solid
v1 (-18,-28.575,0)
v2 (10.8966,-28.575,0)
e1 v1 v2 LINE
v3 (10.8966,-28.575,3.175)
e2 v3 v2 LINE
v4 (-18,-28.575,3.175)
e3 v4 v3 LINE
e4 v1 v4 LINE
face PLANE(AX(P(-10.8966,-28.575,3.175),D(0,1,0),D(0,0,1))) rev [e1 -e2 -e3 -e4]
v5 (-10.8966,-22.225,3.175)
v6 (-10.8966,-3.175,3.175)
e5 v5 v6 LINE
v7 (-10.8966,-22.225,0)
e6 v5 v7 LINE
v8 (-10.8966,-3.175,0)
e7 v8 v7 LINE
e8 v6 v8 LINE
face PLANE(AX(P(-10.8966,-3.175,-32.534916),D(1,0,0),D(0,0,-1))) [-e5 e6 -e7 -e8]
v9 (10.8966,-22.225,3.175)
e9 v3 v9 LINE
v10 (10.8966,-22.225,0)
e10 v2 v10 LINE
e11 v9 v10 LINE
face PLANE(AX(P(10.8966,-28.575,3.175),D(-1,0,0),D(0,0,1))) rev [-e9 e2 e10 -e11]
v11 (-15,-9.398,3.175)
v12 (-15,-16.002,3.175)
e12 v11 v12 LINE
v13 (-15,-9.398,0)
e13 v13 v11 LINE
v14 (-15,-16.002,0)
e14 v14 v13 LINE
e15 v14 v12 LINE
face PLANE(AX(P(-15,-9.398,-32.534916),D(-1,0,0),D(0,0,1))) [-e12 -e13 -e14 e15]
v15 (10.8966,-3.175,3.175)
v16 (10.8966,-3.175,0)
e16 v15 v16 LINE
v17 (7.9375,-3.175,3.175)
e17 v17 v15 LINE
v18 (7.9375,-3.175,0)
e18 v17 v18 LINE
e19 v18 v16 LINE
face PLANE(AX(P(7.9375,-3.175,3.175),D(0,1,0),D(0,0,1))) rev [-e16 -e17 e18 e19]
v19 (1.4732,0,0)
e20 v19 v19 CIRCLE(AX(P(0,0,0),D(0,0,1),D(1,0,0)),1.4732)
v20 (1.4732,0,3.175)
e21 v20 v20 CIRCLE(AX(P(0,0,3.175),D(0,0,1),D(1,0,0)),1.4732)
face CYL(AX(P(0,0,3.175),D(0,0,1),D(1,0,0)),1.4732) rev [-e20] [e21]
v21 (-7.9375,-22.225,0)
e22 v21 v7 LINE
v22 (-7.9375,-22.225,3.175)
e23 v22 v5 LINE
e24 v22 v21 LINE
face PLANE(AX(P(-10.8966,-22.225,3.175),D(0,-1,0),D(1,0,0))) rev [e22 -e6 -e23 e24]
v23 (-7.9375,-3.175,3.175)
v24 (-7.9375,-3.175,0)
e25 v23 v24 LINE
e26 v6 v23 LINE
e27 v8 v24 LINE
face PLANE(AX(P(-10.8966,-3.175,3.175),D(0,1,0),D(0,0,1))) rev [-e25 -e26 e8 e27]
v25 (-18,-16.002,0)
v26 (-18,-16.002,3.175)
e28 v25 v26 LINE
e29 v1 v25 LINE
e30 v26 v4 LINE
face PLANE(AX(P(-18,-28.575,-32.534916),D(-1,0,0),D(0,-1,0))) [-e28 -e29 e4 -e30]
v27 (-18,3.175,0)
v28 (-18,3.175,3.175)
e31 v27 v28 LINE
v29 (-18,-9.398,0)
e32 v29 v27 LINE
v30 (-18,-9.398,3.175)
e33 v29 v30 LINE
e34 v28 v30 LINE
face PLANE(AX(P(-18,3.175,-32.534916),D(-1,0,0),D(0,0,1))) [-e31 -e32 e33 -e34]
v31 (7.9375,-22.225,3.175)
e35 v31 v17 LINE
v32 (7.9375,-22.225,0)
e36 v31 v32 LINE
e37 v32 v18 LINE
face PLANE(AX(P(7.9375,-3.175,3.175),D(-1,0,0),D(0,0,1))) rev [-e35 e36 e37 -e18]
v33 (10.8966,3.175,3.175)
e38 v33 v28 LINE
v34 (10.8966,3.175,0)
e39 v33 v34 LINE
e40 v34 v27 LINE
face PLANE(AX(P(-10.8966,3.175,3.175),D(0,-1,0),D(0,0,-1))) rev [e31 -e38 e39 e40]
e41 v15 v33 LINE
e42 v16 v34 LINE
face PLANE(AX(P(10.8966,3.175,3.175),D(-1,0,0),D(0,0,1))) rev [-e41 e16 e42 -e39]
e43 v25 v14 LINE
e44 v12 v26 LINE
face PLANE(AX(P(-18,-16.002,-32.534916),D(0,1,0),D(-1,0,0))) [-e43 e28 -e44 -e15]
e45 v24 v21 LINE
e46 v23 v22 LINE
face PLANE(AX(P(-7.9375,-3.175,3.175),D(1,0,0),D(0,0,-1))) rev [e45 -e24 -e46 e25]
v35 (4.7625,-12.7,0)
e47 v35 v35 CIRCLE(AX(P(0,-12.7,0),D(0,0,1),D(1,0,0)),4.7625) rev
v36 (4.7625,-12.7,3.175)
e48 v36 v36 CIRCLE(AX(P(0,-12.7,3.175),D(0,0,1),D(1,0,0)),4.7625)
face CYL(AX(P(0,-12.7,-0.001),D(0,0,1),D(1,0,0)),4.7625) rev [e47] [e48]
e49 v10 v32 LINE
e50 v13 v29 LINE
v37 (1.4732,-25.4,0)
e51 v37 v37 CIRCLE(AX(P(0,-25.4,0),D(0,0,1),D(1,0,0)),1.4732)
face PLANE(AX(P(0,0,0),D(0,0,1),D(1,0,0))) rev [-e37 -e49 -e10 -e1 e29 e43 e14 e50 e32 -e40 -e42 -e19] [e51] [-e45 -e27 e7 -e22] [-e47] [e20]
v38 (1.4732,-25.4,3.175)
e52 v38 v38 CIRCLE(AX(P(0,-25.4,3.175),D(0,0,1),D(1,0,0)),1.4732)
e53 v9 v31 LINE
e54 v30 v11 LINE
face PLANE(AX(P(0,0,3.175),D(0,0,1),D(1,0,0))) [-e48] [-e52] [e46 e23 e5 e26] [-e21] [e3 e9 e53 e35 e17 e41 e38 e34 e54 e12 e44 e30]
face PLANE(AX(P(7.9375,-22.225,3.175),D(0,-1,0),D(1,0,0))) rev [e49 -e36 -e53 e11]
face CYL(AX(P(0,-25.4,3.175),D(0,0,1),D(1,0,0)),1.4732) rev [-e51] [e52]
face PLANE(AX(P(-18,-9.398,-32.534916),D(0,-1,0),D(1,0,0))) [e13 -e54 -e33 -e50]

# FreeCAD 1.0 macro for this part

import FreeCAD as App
import Part
import Sketcher
from FreeCAD import Vector
Q = App.Units.Quantity


def add_polygon(sketch, points):
    """Adds a closed chain of lines whose ends are joined by coincident constraints."""
    first, n = sketch.GeometryCount, len(points)
    for a, b in zip(points, points[1:] + points[:1]):
        sketch.addGeometry(Part.LineSegment(App.Vector(*a, 0), App.Vector(*b, 0)), False)
    for i in range(n):
        sketch.addConstraint(Sketcher.Constraint("Coincident", first + i, 2, first + (i + 1) % n, 1))

doc = App.newDocument("Part")
params = doc.addObject("Spreadsheet::Sheet", "Params")
for row, (alias, value) in enumerate([
    ("sketch1_height", "0.25 in"),
    ("sketch1_width", "0.858 in"),
    ("pad1_length", "0.125 in"),
    ("sketch2_diameter", "0.116 in"),
    ("hole_diameter", "0.116 in"),
    ("hole_depth", "0.13 in"),
    ("sketch3_diameter", "0.375 in"),
    ("sketch4_height", "1.25 in"),
    ("sketch4_height2", "0.26 in"),
    ("pad2_length", "0.125 in"),
], start=1):
    params.set(f"A{row}", alias)
    params.set(f"B{row}", "=" + value)
    params.setAlias(f"B{row}", alias)

body = doc.addObject("PartDesign::Body", "Body")

sketch1 = doc.addObject("Sketcher::SketchObject", "Sketch")
body.addObject(sketch1)
sketch1.AttachmentSupport = (doc.XY_Plane, [""])
sketch1.MapMode = "FlatFace"
add_polygon(sketch1, [(7.9, -3.2), (10.9, -3.2), (10.9, 3.2), (-10.9, 3.2), (-10.9, -3.2), (-7.9, -3.2), (-7.9, -22.2), (-10.9, -22.2), (-10.9, -28.6), (10.9, -28.6), (10.9, -22.2), (7.9, -22.2)])
sketch1.addConstraint([
    Sketcher.Constraint("Horizontal", 0),
    Sketcher.Constraint("Vertical", 1),
    Sketcher.Constraint("Horizontal", 2),
    Sketcher.Constraint("Vertical", 3),
    Sketcher.Constraint("Horizontal", 4),
    Sketcher.Constraint("Vertical", 5),
    Sketcher.Constraint("Horizontal", 6),
    Sketcher.Constraint("Vertical", 7),
    Sketcher.Constraint("Horizontal", 8),
    Sketcher.Constraint("Vertical", 9),
    Sketcher.Constraint("Horizontal", 10),
    Sketcher.Constraint("Vertical", 11),
    Sketcher.Constraint("Symmetric", 0, 2, 2, 2, -1, 1),
    Sketcher.Constraint("Symmetric", 6, 2, 9, 2, -2),
    Sketcher.Constraint("Symmetric", 4, 2, 11, 2, -2),
    Sketcher.Constraint("Vertical", 3, 2, 6, 2),
    Sketcher.Constraint("Equal", 3, 7),
    Sketcher.Constraint("DistanceY", 5, 2, 2, 2, Q("1 in")),
    Sketcher.Constraint("DistanceY", 1, 1, 1, 2, Q("0.25 in")),
    Sketcher.Constraint("DistanceX", 2, 2, 2, 1, Q("0.858 in")),
    Sketcher.Constraint("DistanceX", 0, 1, 0, 2, Q("0.1165 in")),
])
sketch1.setExpression("Constraints[30]", "Params.sketch1_height")
sketch1.setExpression("Constraints[31]", "Params.sketch1_width")
pad1 = doc.addObject("PartDesign::Pad", "Pad")
body.addObject(pad1)
pad1.Profile = sketch1
pad1.setExpression("Length", "Params.pad1_length")

sketch2 = doc.addObject("Sketcher::SketchObject", "Sketch001")
body.addObject(sketch2)
sketch2.AttachmentSupport = (doc.XY_Plane, [""])
sketch2.MapMode = "FlatFace"
sketch2.AttachmentOffset = App.Placement(Vector(0, 0, 0.125 * 25.4), App.Rotation())
sketch2.addGeometry([
    Part.Circle(Vector(0, 0, 0), Vector(0, 0, 1), 1.5),
    Part.Circle(Vector(0, -25.4, 0), Vector(0, 0, 1), 1.5),
], False)
sketch2.addConstraint([
    Sketcher.Constraint("Coincident", 0, 3, -1, 1),
    Sketcher.Constraint("Equal", 0, 1),
    Sketcher.Constraint("PointOnObject", 1, 3, -2),
    Sketcher.Constraint("Diameter", 0, Q("0.116 in")),
    Sketcher.Constraint("DistanceY", 1, 3, -1, 1, Q("1 in")),
])
sketch2.setExpression("Constraints[3]", "Params.sketch2_diameter")
doc.recompute()
hole = doc.addObject("PartDesign::Hole", "Hole")
body.addObject(hole)
hole.Profile = sketch2
hole.ThreadType = "None"
hole.setExpression("Diameter", "Params.hole_diameter")
hole.DepthType = "Dimension"
hole.setExpression("Depth", "Params.hole_depth")
hole.DrillPoint = "Angled"
hole.DrillPointAngle = 118

sketch3 = doc.addObject("Sketcher::SketchObject", "Sketch002")
body.addObject(sketch3)
sketch3.AttachmentSupport = (doc.XY_Plane, [""])
sketch3.MapMode = "FlatFace"
sketch3.AttachmentOffset = App.Placement(Vector(0, 0, 0.125 * 25.4), App.Rotation())
sketch3.addGeometry(Part.Circle(Vector(0, -12.7, 0), Vector(0, 0, 1), 4.8), False)
sketch3.addConstraint([
    Sketcher.Constraint("PointOnObject", 0, 3, -2),
    Sketcher.Constraint("Diameter", 0, Q("0.375 in")),
    Sketcher.Constraint("DistanceY", 0, 3, -1, 1, Q("0.5 in")),
])
sketch3.setExpression("Constraints[1]", "Params.sketch3_diameter")
pocket1 = doc.addObject("PartDesign::Pocket", "Pocket")
body.addObject(pocket1)
pocket1.Profile = sketch3
pocket1.Type = "UpToFirst"

sketch4 = doc.addObject("Sketcher::SketchObject", "Sketch003")
body.addObject(sketch4)
sketch4.AttachmentSupport = (doc.XY_Plane, [""])
sketch4.MapMode = "FlatFace"
sketch4.AttachmentOffset = App.Placement(Vector(0, 0, 0.125 * 25.4), App.Rotation())
add_polygon(sketch4, [(-10.9, -28.6), (-10.9, 3.2), (-18, 3.2), (-18, -9.4), (-15, -9.4), (-15, -16), (-18, -16), (-18, -28.6)])
sketch4.addConstraint([
    Sketcher.Constraint("Vertical", 0),
    Sketcher.Constraint("Horizontal", 1),
    Sketcher.Constraint("Vertical", 2),
    Sketcher.Constraint("Horizontal", 3),
    Sketcher.Constraint("Vertical", 4),
    Sketcher.Constraint("Horizontal", 5),
    Sketcher.Constraint("Vertical", 6),
    Sketcher.Constraint("Horizontal", 7),
    Sketcher.Constraint("Vertical", 2, 2, 5, 2),
    Sketcher.Constraint("Equal", 2, 6),
    Sketcher.Constraint("DistanceY", 0, 1, 0, 2, Q("1.25 in")),
    Sketcher.Constraint("DistanceY", 4, 2, 4, 1, Q("0.26 in")),
    Sketcher.Constraint("DistanceY", 2, 2, -1, 1, Q("0.37 in")),
    Sketcher.Constraint("DistanceX", 0, 2, -1, 1, Q("0.429 in")),
    Sketcher.Constraint("DistanceX", 1, 2, 1, 1, 7.1034),
    Sketcher.Constraint("DistanceX", 3, 1, 3, 2, 3.0),
])
sketch4.setExpression("Constraints[18]", "Params.sketch4_height")
sketch4.setExpression("Constraints[19]", "Params.sketch4_height2")
pad2 = doc.addObject("PartDesign::Pad", "Pad001")
body.addObject(pad2)
pad2.Profile = sketch4
pad2.setExpression("Length", "Params.pad2_length")
pad2.Reversed = True

doc.recompute()
